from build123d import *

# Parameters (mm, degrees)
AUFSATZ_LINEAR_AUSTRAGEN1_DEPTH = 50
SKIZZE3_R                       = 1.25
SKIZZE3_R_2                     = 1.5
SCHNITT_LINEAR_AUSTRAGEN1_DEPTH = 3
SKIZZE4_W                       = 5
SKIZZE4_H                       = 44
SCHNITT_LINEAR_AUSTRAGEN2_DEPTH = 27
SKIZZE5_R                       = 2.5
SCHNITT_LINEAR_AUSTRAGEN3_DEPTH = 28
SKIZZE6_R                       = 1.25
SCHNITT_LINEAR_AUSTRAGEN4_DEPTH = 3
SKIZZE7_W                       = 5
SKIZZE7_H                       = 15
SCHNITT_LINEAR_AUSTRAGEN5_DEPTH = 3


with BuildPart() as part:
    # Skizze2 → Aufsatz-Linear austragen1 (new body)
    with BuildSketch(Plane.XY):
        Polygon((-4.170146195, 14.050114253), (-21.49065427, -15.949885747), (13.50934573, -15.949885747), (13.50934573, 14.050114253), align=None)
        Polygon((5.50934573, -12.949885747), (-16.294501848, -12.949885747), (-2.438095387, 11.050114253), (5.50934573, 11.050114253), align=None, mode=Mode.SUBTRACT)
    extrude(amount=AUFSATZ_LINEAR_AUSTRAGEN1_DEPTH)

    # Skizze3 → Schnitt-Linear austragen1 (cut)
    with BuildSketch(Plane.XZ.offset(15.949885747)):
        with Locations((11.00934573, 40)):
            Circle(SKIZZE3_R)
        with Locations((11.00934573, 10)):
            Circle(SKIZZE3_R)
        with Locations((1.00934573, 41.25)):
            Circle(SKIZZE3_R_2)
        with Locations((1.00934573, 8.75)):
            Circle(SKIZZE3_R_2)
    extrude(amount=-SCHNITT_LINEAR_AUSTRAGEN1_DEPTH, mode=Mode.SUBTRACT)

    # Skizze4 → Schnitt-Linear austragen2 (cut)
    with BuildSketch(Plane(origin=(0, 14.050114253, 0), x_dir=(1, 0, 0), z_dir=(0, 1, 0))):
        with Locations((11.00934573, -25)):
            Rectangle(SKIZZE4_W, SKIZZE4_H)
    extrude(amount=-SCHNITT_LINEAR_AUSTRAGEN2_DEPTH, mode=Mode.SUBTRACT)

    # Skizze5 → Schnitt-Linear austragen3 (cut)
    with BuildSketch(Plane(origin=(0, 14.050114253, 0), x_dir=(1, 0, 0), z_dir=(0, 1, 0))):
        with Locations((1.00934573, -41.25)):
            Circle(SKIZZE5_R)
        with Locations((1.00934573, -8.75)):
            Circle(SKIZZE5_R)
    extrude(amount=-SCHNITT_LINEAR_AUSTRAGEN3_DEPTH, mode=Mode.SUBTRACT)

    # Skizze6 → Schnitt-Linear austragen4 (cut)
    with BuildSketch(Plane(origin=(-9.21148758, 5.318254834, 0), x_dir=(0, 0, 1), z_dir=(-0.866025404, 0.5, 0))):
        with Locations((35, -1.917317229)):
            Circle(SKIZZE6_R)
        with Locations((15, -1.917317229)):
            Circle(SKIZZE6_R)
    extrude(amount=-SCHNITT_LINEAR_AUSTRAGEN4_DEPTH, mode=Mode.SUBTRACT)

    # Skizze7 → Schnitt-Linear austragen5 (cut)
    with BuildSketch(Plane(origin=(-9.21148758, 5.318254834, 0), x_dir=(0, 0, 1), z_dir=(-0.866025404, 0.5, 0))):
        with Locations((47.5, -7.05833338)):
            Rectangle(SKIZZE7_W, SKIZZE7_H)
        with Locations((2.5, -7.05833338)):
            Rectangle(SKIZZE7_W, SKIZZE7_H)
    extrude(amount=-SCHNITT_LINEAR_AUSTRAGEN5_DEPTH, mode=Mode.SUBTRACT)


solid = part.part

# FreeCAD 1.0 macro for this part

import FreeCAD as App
import Part
import Sketcher

V = App.Vector
Q = App.Units.Quantity


def add_polygon(sketch, points):
    """Adds a closed chain of lines whose ends are joined by coincident constraints."""
    first, n = sketch.GeometryCount, len(points)
    for a, b in zip(points, points[1:] + points[:1]):
        sketch.addGeometry(Part.LineSegment(App.Vector(*a, 0), App.Vector(*b, 0)), False)
    for i in range(n):
        sketch.addConstraint(Sketcher.Constraint("Coincident", first + i, 2, first + (i + 1) % n, 1))

doc = App.newDocument("Part")
body = doc.addObject("PartDesign::Body", "Body")

# Sketch on XY plane
sketch1 = body.newObject("Sketcher::SketchObject", "Sketch")
sketch1.AttachmentSupport = (doc.getObject("XY_Plane"), [""])
sketch1.MapMode = "FlatFace"
add_polygon(sketch1, [(-4, 14), (-21, -16), (14, -16), (14, 14)])  # lines 0-3
add_polygon(sketch1, [(6, 11), (6, -13), (-16, -13), (-2, 11)])  # lines 4-7
sketch1.addConstraint(Sketcher.Constraint("Horizontal", 1))
sketch1.addConstraint(Sketcher.Constraint("Vertical", 2))
sketch1.addConstraint(Sketcher.Constraint("Horizontal", 3))
sketch1.addConstraint(Sketcher.Constraint("Vertical", 4))
sketch1.addConstraint(Sketcher.Constraint("Horizontal", 5))
sketch1.addConstraint(Sketcher.Constraint("Horizontal", 7))
sketch1.addConstraint(Sketcher.Constraint("Parallel", 0, 6))
sketch1.addConstraint(Sketcher.Constraint("DistanceX", 1, 1, 1, 2, 35.0))
sketch1.addConstraint(Sketcher.Constraint("DistanceY", 2, 1, 2, 2, 30.0))
sketch1.addConstraint(Sketcher.Constraint("DistanceY", 4, 2, 4, 1, 24.0))
sketch1.addConstraint(Sketcher.Constraint("Angle", 0, Q("-120 deg")))
sketch1.addConstraint(Sketcher.Constraint("DistanceX", 4, 2, 1, 2, 8.0))
sketch1.addConstraint(Sketcher.Constraint("DistanceY", 1, 2, 4, 2, 3.0))
sketch1.addConstraint(Sketcher.Constraint("DistanceX", 7, 1, 7, 2, 7.947441))
sketch1.addConstraint(Sketcher.Constraint("DistanceX", 5, 2, -1, 1, 16.294502))
sketch1.addConstraint(Sketcher.Constraint("DistanceY", 0, 2, -1, 1, 15.949886))
pad1 = body.newObject("PartDesign::Pad", "Pad")
pad1.Profile = sketch1
pad1.Length = 50

# Sketch on XZ plane
sketch2 = body.newObject("Sketcher::SketchObject", "Sketch001")
sketch2.AttachmentSupport = (doc.getObject("XZ_Plane"), [""])
sketch2.MapMode = "FlatFace"
sketch2.AttachmentOffset = App.Placement(V(0, 0, 15.949886), App.Rotation())
sketch2.addGeometry(Part.Circle(V(11, 40, 0), V(0, 0, 1), 1.2), False)
sketch2.addGeometry(Part.Circle(V(11, 10, 0), V(0, 0, 1), 1.2), False)
sketch2.addGeometry(Part.Circle(V(1, 41.2, 0), V(0, 0, 1), 1.5), False)
sketch2.addGeometry(Part.Circle(V(1, 8.8, 0), V(0, 0, 1), 1.5), False)
sketch2.addConstraint(Sketcher.Constraint("Equal", 0, 1))
sketch2.addConstraint(Sketcher.Constraint("Equal", 2, 3))
sketch2.addConstraint(Sketcher.Constraint("Vertical", 0, 3, 1, 3))
sketch2.addConstraint(Sketcher.Constraint("Vertical", 2, 3, 3, 3))
sketch2.addConstraint(Sketcher.Constraint("Diameter", 2, 3.0))
sketch2.addConstraint(Sketcher.Constraint("Diameter", 0, 2.5))
sketch2.addConstraint(Sketcher.Constraint("DistanceY", -1, 1, 0, 3, 40.0))
sketch2.addConstraint(Sketcher.Constraint("DistanceY", -1, 1, 1, 3, 10.0))
sketch2.addConstraint(Sketcher.Constraint("DistanceX", 2, 3, 0, 3, 10.0))
sketch2.addConstraint(Sketcher.Constraint("DistanceY", 3, 3, 2, 3, 32.5))
sketch2.addConstraint(Sketcher.Constraint("DistanceY", -1, 1, 2, 3, 41.25))
sketch2.addConstraint(Sketcher.Constraint("DistanceX", -1, 1, 0, 3, 11.009346))
pocket1 = body.newObject("PartDesign::Pocket", "Pocket")
pocket1.Profile = sketch2
pocket1.Length = 3

# Sketch on XZ plane
sketch3 = body.newObject("Sketcher::SketchObject", "Sketch002")
sketch3.AttachmentSupport = (doc.getObject("XZ_Plane"), [""])
sketch3.MapMode = "FlatFace"
sketch3.AttachmentOffset = App.Placement(V(0, 0, -14.050114), App.Rotation())
add_polygon(sketch3, [(9, 3), (9, 47), (14, 47), (14, 3)])  # lines 0-3
sketch3.addConstraint(Sketcher.Constraint("Vertical", 0))
sketch3.addConstraint(Sketcher.Constraint("Horizontal", 1))
sketch3.addConstraint(Sketcher.Constraint("Vertical", 2))
sketch3.addConstraint(Sketcher.Constraint("Horizontal", 3))
sketch3.addConstraint(Sketcher.Constraint("DistanceX", 1, 1, 1, 2, 5.0))
sketch3.addConstraint(Sketcher.Constraint("DistanceY", 0, 1, 0, 2, 44.0))
sketch3.addConstraint(Sketcher.Constraint("DistanceY", -1, 1, 0, 2, 47.0))
sketch3.addConstraint(Sketcher.Constraint("DistanceX", -1, 1, 0, 2, 8.509346))
pocket2 = body.newObject("PartDesign::Pocket", "Pocket001")
pocket2.Profile = sketch3
pocket2.Length = 27
pocket2.Reversed = True

# Sketch on XZ plane
sketch4 = body.newObject("Sketcher::SketchObject", "Sketch003")
sketch4.AttachmentSupport = (doc.getObject("XZ_Plane"), [""])
sketch4.MapMode = "FlatFace"
sketch4.AttachmentOffset = App.Placement(V(0, 0, -14.050114), App.Rotation())
sketch4.addGeometry(Part.Circle(V(1, 41.2, 0), V(0, 0, 1), 2.5), False)
sketch4.addGeometry(Part.Circle(V(1, 8.8, 0), V(0, 0, 1), 2.5), False)
sketch4.addConstraint(Sketcher.Constraint("Equal", 0, 1))
sketch4.addConstraint(Sketcher.Constraint("Vertical", 0, 3, 1, 3))
sketch4.addConstraint(Sketcher.Constraint("Diameter", 0, 5.0))
sketch4.addConstraint(Sketcher.Constraint("DistanceY", 1, 3, 0, 3, 32.5))
sketch4.addConstraint(Sketcher.Constraint("DistanceY", -1, 1, 0, 3, 41.25))
sketch4.addConstraint(Sketcher.Constraint("DistanceX", -1, 1, 0, 3, 1.009346))
pocket3 = body.newObject("PartDesign::Pocket", "Pocket002")
pocket3.Profile = sketch4
pocket3.Length = 28
pocket3.Reversed = True

# Sketch on an angled plane
sketch5 = body.newObject("Sketcher::SketchObject", "Sketch004")
sketch5.Placement = App.Placement(V(-9.211488, 5.318255, 0), App.Rotation(V(0, 0, 1), V(0.5, 0.866025404, 0), V(-0.866025404, 0.5, 0), "ZXY"))
sketch5.addGeometry(Part.Circle(V(35, -1.9, 0), V(0, 0, 1), 1.2), False)
sketch5.addGeometry(Part.Circle(V(15, -1.9, 0), V(0, 0, 1), 1.2), False)
sketch5.addConstraint(Sketcher.Constraint("Equal", 0, 1))
sketch5.addConstraint(Sketcher.Constraint("Horizontal", 0, 3, 1, 3))
sketch5.addConstraint(Sketcher.Constraint("Diameter", 0, 2.5))
sketch5.addConstraint(Sketcher.Constraint("DistanceX", -1, 1, 0, 3, 35.0))
sketch5.addConstraint(Sketcher.Constraint("DistanceX", -1, 1, 1, 3, 15.0))
sketch5.addConstraint(Sketcher.Constraint("DistanceY", 0, 3, -1, 1, 1.917317))
pocket4 = body.newObject("PartDesign::Pocket", "Pocket003")
pocket4.Profile = sketch5
pocket4.Length = 3

# Sketch on an angled plane
sketch6 = body.newObject("Sketcher::SketchObject", "Sketch005")
sketch6.Placement = App.Placement(V(-9.211488, 5.318255, 0), App.Rotation(V(0, 0, 1), V(0.5, 0.866025404, 0), V(-0.866025404, 0.5, 0), "ZXY"))
add_polygon(sketch6, [(45, 0), (45, -15), (50, -15), (50, 0)])  # lines 0-3
add_polygon(sketch6, [(0, 0), (0, -15), (5, -15), (5, 0)])  # lines 4-7
sketch6.addConstraint(Sketcher.Constraint("Vertical", 0))
sketch6.addConstraint(Sketcher.Constraint("Horizontal", 1))
sketch6.addConstraint(Sketcher.Constraint("Vertical", 2))
sketch6.addConstraint(Sketcher.Constraint("Horizontal", 3))
sketch6.addConstraint(Sketcher.Constraint("Vertical", 4))
sketch6.addConstraint(Sketcher.Constraint("Horizontal", 5))
sketch6.addConstraint(Sketcher.Constraint("Vertical", 6))
sketch6.addConstraint(Sketcher.Constraint("Horizontal", 7))
sketch6.addConstraint(Sketcher.Constraint("PointOnObject", 4, 2, -2))
sketch6.addConstraint(Sketcher.Constraint("Horizontal", 1, 2, 4, 2))
sketch6.addConstraint(Sketcher.Constraint("Horizontal", 3, 2, 6, 2))
sketch6.addConstraint(Sketcher.Constraint("Equal", 3, 5))
sketch6.addConstraint(Sketcher.Constraint("DistanceX", 1, 1, 1, 2, 5.0))
sketch6.addConstraint(Sketcher.Constraint("DistanceY", 0, 2, 0, 1, 15.0))
sketch6.addConstraint(Sketcher.Constraint("DistanceX", -1, 1, 0, 2, 45.0))
sketch6.addConstraint(Sketcher.Constraint("DistanceY", 0, 2, -1, 1, 14.558333))
pocket5 = body.newObject("PartDesign::Pocket", "Pocket004")
pocket5.Profile = sketch6
pocket5.Length = 3

doc.recompute()
